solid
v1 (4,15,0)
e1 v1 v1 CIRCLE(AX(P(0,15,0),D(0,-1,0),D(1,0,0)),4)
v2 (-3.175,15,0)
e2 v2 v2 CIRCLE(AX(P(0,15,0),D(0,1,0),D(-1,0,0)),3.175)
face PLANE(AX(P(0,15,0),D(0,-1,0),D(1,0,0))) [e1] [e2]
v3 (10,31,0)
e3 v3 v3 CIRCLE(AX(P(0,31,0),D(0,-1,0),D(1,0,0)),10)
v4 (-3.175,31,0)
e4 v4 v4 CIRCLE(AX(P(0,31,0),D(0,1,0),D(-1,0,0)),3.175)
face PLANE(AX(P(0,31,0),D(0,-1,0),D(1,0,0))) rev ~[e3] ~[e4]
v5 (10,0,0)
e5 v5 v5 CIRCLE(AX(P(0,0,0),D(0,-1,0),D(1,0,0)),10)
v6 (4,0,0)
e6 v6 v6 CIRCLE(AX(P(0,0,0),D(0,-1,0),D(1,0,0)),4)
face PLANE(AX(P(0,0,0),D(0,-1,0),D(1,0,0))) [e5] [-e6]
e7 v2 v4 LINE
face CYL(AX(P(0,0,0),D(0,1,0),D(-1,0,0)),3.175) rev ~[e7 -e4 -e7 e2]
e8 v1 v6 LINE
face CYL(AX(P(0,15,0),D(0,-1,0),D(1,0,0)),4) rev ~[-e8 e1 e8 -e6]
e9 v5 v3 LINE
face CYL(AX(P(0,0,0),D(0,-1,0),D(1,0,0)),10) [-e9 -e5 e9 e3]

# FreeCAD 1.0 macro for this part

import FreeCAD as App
import Part
import Sketcher
from FreeCAD import Vector

doc = App.newDocument("Part")
params = doc.addObject("Spreadsheet::Sheet", "Params")
for row, (alias, value) in enumerate([
    ("sketch1_diameter", "20 mm"),
    ("pad1_length", "31 mm"),
    ("sketch2_diameter", "6.35 mm"),
    ("hole_diameter", "6.35 mm"),
    ("hole_cbore_diameter", "8 mm"),
    ("hole_cbore_depth", "15 mm"),
], start=1):
    params.set(f"A{row}", alias)
    params.set(f"B{row}", "=" + value)
    params.setAlias(f"B{row}", alias)

body = doc.addObject("PartDesign::Body", "Body")

# Sketch on XZ plane
sketch1 = body.newObject("Sketcher::SketchObject", "Sketch")
sketch1.AttachmentSupport = (doc.getObject("XZ_Plane"), [""])
sketch1.MapMode = "FlatFace"
sketch1.addGeometry(Part.Circle(Vector(0, 0, 0), Vector(0, 0, 1), 10), False)
sketch1.addConstraint([
    Sketcher.Constraint("Coincident", 0, 3, -1, 1),
    Sketcher.Constraint("Diameter", 0, 20.0),
])
sketch1.setExpression("Constraints[1]", "Params.sketch1_diameter")
pad1 = body.newObject("PartDesign::Pad", "Pad")
pad1.Profile = sketch1
pad1.setExpression("Length", "Params.pad1_length")
pad1.Reversed = True

# Sketch on XZ plane
sketch2 = body.newObject("Sketcher::SketchObject", "Sketch001")
sketch2.AttachmentSupport = (doc.getObject("XZ_Plane"), [""])
sketch2.MapMode = "FlatFace"
sketch2.addGeometry(Part.Circle(Vector(0, 0, 0), Vector(0, 0, 1), 3.175), False)
sketch2.addConstraint([
    Sketcher.Constraint("Coincident", 0, 3, -1, 1),
    Sketcher.Constraint("Diameter", 0, 6.35),
])
sketch2.setExpression("Constraints[1]", "Params.sketch2_diameter")
doc.recompute()
hole = body.newObject("PartDesign::Hole", "Hole")
hole.Profile = sketch2
hole.ThreadType = "None"
hole.setExpression("Diameter", "Params.hole_diameter")
hole.DepthType = "ThroughAll"
hole.HoleCutType = "Counterbore"
hole.setExpression("HoleCutDiameter", "Params.hole_cbore_diameter")
hole.setExpression("HoleCutDepth", "Params.hole_cbore_depth")

doc.recompute()
